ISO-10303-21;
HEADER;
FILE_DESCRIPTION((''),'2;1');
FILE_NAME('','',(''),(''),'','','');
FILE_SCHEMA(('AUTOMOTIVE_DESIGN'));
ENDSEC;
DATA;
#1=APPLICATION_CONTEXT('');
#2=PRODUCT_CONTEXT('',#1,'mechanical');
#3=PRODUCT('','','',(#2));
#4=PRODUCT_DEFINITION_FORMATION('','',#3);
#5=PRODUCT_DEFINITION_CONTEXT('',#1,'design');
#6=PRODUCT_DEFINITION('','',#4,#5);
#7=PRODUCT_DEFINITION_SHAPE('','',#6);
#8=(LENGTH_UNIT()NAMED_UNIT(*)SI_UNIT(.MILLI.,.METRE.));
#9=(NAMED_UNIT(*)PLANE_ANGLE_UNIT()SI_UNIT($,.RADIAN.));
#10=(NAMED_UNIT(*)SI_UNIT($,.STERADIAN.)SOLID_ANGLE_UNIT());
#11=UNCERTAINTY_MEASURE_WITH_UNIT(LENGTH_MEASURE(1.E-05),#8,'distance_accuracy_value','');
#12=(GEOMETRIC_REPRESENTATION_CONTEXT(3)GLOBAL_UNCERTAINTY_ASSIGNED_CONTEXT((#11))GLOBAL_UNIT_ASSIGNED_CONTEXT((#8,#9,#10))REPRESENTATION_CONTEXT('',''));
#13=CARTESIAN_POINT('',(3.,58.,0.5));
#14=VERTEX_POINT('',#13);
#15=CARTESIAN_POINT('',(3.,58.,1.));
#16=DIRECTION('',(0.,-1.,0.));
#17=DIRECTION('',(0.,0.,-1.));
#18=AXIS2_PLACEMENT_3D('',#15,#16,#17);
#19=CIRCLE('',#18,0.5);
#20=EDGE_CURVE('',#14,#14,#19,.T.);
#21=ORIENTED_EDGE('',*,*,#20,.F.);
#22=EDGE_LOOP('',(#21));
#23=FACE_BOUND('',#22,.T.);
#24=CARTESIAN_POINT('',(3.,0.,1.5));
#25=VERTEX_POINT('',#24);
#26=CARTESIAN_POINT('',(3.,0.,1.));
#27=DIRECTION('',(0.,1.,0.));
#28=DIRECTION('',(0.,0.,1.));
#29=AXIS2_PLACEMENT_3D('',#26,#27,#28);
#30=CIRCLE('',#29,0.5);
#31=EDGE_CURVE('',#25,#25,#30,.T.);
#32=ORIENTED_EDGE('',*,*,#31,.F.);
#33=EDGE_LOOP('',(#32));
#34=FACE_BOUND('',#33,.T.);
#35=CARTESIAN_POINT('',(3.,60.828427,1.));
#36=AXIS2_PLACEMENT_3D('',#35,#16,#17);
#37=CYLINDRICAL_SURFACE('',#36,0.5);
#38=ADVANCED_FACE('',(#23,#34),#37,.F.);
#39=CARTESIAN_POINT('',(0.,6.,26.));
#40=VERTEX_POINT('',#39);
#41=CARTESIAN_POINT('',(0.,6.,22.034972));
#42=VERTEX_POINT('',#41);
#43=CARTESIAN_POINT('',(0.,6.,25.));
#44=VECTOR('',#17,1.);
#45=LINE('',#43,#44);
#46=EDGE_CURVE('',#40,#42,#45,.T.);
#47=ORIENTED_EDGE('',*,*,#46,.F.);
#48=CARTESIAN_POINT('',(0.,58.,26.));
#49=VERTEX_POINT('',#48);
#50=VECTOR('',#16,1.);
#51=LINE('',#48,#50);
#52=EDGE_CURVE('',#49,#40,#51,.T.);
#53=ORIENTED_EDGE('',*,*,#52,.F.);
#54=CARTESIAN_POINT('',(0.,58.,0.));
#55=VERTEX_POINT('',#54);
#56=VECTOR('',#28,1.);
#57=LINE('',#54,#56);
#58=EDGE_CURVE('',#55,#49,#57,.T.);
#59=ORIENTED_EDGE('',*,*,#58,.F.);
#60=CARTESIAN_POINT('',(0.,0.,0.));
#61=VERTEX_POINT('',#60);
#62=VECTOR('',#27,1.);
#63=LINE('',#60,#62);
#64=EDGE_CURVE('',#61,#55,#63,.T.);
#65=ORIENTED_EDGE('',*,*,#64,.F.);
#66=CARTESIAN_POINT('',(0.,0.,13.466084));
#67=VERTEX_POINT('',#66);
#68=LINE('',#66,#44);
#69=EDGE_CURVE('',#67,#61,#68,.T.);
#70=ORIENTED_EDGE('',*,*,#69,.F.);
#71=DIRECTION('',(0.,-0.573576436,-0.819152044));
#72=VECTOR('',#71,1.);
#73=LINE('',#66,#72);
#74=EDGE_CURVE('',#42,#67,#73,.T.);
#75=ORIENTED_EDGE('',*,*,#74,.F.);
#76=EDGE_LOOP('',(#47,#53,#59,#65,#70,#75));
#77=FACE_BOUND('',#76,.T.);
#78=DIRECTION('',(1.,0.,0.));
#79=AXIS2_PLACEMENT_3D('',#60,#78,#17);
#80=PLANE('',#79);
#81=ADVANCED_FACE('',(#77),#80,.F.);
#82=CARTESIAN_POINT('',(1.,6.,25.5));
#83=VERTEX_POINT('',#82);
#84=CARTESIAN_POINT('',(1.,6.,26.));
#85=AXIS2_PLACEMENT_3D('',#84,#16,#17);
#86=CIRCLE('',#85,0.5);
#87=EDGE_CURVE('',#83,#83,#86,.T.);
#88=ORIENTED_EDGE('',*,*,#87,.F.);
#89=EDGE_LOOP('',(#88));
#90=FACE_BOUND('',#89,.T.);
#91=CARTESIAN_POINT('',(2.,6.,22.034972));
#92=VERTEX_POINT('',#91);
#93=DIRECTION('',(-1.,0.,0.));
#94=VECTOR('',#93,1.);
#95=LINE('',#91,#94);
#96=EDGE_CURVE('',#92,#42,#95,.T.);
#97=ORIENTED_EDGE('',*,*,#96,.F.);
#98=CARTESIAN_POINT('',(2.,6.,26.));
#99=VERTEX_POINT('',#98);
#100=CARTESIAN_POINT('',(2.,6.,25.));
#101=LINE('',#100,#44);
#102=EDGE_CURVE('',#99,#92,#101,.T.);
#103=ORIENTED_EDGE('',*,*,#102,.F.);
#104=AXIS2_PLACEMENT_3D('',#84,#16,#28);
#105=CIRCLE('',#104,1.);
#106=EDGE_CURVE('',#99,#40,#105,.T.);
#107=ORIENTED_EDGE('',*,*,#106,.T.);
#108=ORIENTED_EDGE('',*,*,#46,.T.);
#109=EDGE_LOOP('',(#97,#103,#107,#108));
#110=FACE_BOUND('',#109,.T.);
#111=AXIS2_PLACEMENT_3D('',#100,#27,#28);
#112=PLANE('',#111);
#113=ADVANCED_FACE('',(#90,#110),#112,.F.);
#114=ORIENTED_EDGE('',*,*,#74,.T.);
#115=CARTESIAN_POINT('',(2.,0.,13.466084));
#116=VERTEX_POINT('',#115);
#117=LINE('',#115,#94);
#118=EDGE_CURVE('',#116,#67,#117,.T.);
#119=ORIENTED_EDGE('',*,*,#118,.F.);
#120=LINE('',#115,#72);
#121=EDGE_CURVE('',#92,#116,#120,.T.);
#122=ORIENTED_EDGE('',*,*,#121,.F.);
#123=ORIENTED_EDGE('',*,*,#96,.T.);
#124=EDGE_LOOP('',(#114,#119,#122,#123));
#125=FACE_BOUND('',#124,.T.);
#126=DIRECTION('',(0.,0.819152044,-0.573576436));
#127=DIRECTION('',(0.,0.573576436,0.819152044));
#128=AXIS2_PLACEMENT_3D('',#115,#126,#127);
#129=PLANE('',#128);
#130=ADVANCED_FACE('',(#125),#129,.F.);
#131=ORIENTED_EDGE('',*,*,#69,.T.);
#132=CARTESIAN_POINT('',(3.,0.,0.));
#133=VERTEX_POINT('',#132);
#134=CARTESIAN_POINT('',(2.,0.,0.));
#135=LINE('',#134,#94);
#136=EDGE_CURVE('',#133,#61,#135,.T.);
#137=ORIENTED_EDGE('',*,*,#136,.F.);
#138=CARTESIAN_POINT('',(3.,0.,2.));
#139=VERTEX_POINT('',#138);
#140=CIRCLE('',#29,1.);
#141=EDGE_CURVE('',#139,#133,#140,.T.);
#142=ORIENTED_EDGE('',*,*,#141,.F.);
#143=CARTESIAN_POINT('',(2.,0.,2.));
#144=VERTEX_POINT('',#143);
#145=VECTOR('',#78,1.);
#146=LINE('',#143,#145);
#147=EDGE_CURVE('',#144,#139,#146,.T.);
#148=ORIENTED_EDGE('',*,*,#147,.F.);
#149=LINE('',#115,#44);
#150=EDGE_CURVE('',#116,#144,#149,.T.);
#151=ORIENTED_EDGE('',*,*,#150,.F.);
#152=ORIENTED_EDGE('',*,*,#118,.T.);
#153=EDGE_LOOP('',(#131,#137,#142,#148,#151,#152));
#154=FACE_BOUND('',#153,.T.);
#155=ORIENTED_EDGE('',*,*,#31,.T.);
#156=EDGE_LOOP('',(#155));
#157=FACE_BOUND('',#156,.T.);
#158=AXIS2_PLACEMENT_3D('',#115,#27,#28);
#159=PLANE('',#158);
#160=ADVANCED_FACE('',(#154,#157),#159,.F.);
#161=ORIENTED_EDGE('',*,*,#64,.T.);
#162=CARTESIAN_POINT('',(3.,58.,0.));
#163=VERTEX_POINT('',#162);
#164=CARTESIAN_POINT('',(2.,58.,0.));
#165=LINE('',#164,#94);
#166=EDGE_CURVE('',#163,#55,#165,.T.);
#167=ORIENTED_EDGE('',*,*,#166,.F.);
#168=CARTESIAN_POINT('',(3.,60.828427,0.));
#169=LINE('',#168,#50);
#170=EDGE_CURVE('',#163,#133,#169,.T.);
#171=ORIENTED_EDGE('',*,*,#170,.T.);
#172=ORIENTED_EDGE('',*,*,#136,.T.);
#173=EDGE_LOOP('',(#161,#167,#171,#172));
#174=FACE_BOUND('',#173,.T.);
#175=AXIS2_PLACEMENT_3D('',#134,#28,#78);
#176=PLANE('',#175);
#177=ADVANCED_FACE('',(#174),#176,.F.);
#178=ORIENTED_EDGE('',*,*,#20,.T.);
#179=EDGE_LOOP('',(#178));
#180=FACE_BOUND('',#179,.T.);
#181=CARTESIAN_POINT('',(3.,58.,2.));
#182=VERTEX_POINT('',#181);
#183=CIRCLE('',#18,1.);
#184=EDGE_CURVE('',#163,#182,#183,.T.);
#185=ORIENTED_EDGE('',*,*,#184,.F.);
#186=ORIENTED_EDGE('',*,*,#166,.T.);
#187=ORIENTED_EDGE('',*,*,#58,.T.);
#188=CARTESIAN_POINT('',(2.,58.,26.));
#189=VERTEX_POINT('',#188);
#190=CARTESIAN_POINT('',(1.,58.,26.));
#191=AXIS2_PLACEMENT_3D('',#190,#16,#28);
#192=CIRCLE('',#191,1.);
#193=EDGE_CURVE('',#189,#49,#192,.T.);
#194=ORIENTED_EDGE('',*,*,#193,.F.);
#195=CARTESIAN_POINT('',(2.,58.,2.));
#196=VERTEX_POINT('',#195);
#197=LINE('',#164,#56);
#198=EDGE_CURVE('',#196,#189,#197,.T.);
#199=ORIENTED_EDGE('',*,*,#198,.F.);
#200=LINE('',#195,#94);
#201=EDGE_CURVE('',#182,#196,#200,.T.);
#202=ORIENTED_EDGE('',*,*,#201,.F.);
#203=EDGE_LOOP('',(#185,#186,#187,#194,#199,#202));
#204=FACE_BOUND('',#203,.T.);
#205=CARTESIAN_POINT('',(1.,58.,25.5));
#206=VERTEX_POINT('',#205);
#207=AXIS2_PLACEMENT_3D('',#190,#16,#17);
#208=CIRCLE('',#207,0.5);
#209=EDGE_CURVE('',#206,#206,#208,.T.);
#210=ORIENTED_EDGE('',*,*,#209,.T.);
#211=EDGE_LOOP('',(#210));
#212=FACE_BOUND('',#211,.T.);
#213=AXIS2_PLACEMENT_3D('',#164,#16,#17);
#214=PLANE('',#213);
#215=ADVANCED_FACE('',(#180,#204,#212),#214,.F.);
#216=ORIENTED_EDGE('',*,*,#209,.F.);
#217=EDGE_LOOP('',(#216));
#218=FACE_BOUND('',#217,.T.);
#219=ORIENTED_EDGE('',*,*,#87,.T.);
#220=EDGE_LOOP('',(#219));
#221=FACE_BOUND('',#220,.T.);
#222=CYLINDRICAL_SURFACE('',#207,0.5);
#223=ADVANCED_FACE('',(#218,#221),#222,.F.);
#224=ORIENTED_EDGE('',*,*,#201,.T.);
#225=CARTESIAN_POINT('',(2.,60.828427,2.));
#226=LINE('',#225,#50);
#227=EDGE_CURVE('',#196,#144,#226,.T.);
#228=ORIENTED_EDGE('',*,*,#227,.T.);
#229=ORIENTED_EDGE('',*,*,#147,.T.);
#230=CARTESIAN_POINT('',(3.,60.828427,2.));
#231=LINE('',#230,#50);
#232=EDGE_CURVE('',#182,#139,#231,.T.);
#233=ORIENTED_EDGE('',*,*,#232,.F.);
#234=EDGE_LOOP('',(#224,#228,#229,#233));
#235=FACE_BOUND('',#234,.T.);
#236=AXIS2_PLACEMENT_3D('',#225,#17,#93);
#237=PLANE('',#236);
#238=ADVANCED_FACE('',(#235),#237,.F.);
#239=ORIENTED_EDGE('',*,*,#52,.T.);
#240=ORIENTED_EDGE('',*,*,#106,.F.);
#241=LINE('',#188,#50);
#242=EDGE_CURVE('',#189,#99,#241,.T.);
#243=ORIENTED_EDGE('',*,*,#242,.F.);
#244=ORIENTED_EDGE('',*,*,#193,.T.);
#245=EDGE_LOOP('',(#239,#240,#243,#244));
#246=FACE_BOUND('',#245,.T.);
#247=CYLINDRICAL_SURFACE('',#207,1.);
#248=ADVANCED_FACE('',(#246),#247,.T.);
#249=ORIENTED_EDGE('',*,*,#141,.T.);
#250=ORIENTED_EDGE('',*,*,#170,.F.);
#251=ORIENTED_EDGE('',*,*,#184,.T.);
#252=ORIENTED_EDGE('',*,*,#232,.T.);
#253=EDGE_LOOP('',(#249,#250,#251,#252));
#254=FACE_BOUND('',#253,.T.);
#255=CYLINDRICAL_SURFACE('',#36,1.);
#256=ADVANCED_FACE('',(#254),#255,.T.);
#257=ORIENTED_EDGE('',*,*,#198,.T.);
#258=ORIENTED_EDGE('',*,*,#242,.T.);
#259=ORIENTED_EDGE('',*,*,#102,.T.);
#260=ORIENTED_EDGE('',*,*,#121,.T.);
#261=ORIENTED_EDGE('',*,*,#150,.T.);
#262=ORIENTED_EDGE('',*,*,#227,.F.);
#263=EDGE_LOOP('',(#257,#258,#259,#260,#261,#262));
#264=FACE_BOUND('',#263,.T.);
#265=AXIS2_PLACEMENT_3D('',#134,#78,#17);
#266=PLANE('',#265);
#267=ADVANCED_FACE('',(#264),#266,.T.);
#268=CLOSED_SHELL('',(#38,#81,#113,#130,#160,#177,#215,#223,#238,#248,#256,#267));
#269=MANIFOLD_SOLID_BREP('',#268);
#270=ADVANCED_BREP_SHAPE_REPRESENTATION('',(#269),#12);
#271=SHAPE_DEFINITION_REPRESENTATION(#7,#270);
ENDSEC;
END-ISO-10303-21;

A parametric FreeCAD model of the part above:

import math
import FreeCAD as App
import Part
import Sketcher
from FreeCAD import Vector
Q = App.Units.Quantity

doc = App.newDocument("Part")
body = doc.addObject("PartDesign::Body", "Body")

# Sketch on YZ plane
sketch1 = body.newObject("Sketcher::SketchObject", "Sketch")
sketch1.AttachmentSupport = (doc.getObject("YZ_Plane"), [""])
sketch1.MapMode = "FlatFace"
sketch1.addGeometry(Part.LineSegment(Vector(6, 25, 0), Vector(6, 22, 0)), False)
sketch1.addGeometry(Part.LineSegment(Vector(6, 22, 0), Vector(0, 13.5, 0)), False)
sketch1.addGeometry(Part.LineSegment(Vector(0, 13.5, 0), Vector(0, 0, 0)), False)
sketch1.addGeometry(Part.LineSegment(Vector(0, 0, 0), Vector(58, 0, 0)), False)
sketch1.addGeometry(Part.LineSegment(Vector(58, 0, 0), Vector(58, 25, 0)), False)
sketch1.addGeometry(Part.LineSegment(Vector(58, 25, 0), Vector(6, 25, 0)), False)
sketch1.addConstraint(Sketcher.Constraint("Coincident", 0, 2, 1, 1))
sketch1.addConstraint(Sketcher.Constraint("Coincident", 1, 2, 2, 1))
sketch1.addConstraint(Sketcher.Constraint("Coincident", 2, 2, 3, 1))
sketch1.addConstraint(Sketcher.Constraint("Coincident", 3, 2, 4, 1))
sketch1.addConstraint(Sketcher.Constraint("Coincident", 4, 2, 5, 1))
sketch1.addConstraint(Sketcher.Constraint("Coincident", 5, 2, 0, 1))
sketch1.addConstraint(Sketcher.Constraint("Vertical", 0))
sketch1.addConstraint(Sketcher.Constraint("Vertical", 2))
sketch1.addConstraint(Sketcher.Constraint("Horizontal", 3))
sketch1.addConstraint(Sketcher.Constraint("Vertical", 4))
sketch1.addConstraint(Sketcher.Constraint("Horizontal", 5))
sketch1.addConstraint(Sketcher.Constraint("Coincident", 2, 2, -1, 1))
sketch1.addConstraint(Sketcher.Constraint("DistanceX", 3, 1, 3, 2, 58.0))
sketch1.addConstraint(Sketcher.Constraint("DistanceX", 5, 2, 5, 1, 52.0))
sketch1.addConstraint(Sketcher.Constraint("DistanceY", 4, 1, 4, 2, 25.0))
sketch1.addConstraint(Sketcher.Constraint("Angle", 1, Q("-125 deg")))
sketch1.addConstraint(Sketcher.Constraint("DistanceY", 0, 2, 0, 1, 2.965028))
pad1 = body.newObject("PartDesign::Pad", "Pad")
pad1.Profile = sketch1
pad1.Length = 2

# Sketch on XZ plane
sketch2 = body.newObject("Sketcher::SketchObject", "Sketch001")
sketch2.AttachmentSupport = (doc.getObject("XZ_Plane"), [""])
sketch2.MapMode = "FlatFace"
sketch2.AttachmentOffset = App.Placement(Vector(0, 0, -6), App.Rotation())
sketch2.addGeometry(Part.LineSegment(Vector(0, 26, 0), Vector(0, 25, 0)), False)
sketch2.addGeometry(Part.LineSegment(Vector(0, 25, 0), Vector(2, 25, 0)), False)
sketch2.addGeometry(Part.LineSegment(Vector(2, 25, 0), Vector(2, 26, 0)), False)
sketch2.addGeometry(Part.ArcOfCircle(Part.Circle(Vector(1, 26, 0), Vector(0, 0, 1), 1), math.radians(0), math.radians(180)), False)
sketch2.addGeometry(Part.Circle(Vector(1, 26, 0), Vector(0, 0, 1), 0.5), False)
sketch2.addConstraint(Sketcher.Constraint("Coincident", 0, 2, 1, 1))
sketch2.addConstraint(Sketcher.Constraint("Coincident", 1, 2, 2, 1))
sketch2.addConstraint(Sketcher.Constraint("Tangent", 2, 2, 3, 1))
sketch2.addConstraint(Sketcher.Constraint("Tangent", 3, 2, 0, 1))
sketch2.addConstraint(Sketcher.Constraint("Vertical", 0))
sketch2.addConstraint(Sketcher.Constraint("Horizontal", 1))
sketch2.addConstraint(Sketcher.Constraint("Vertical", 2))
sketch2.addConstraint(Sketcher.Constraint("Coincident", 4, 3, 3, 3))
sketch2.addConstraint(Sketcher.Constraint("PointOnObject", 0, 2, -2))
sketch2.addConstraint(Sketcher.Constraint("Diameter", 4, 1.0))
sketch2.addConstraint(Sketcher.Constraint("Radius", 3, 1.0))
sketch2.addConstraint(Sketcher.Constraint("DistanceY", 0, 2, 0, 1, 1.0))
sketch2.addConstraint(Sketcher.Constraint("DistanceY", -1, 1, 3, 3, 26.0))
pad2 = body.newObject("PartDesign::Pad", "Pad001")
pad2.Profile = sketch2
pad2.Length = 52
pad2.Reversed = True

# Sketch on XZ plane
sketch3 = body.newObject("Sketcher::SketchObject", "Sketch002")
sketch3.AttachmentSupport = (doc.getObject("XZ_Plane"), [""])
sketch3.MapMode = "FlatFace"
sketch3.addGeometry(Part.LineSegment(Vector(3, 0, 0), Vector(2, 0, 0)), False)
sketch3.addGeometry(Part.LineSegment(Vector(2, 0, 0), Vector(2, 2, 0)), False)
sketch3.addGeometry(Part.LineSegment(Vector(2, 2, 0), Vector(3, 2, 0)), False)
sketch3.addGeometry(Part.ArcOfCircle(Part.Circle(Vector(3, 1, 0), Vector(0, 0, 1), 1), math.radians(-90), math.radians(90)), False)
sketch3.addGeometry(Part.Circle(Vector(3, 1, 0), Vector(0, 0, 1), 0.5), False)
sketch3.addConstraint(Sketcher.Constraint("Coincident", 0, 2, 1, 1))
sketch3.addConstraint(Sketcher.Constraint("Coincident", 1, 2, 2, 1))
sketch3.addConstraint(Sketcher.Constraint("Tangent", 2, 2, 3, 2))
sketch3.addConstraint(Sketcher.Constraint("Tangent", 3, 1, 0, 1))
sketch3.addConstraint(Sketcher.Constraint("Horizontal", 0))
sketch3.addConstraint(Sketcher.Constraint("Vertical", 1))
sketch3.addConstraint(Sketcher.Constraint("Horizontal", 2))
sketch3.addConstraint(Sketcher.Constraint("Coincident", 4, 3, 3, 3))
sketch3.addConstraint(Sketcher.Constraint("PointOnObject", 0, 2, -1))
sketch3.addConstraint(Sketcher.Constraint("Diameter", 4, 1.0))
sketch3.addConstraint(Sketcher.Constraint("Radius", 3, 1.0))
sketch3.addConstraint(Sketcher.Constraint("DistanceX", 0, 2, 0, 1, 1.0))
sketch3.addConstraint(Sketcher.Constraint("DistanceX", -1, 1, 3, 3, 3.0))
pad3 = body.newObject("PartDesign::Pad", "Pad002")
pad3.Profile = sketch3
pad3.Length = 58
pad3.Reversed = True

doc.recompute()
